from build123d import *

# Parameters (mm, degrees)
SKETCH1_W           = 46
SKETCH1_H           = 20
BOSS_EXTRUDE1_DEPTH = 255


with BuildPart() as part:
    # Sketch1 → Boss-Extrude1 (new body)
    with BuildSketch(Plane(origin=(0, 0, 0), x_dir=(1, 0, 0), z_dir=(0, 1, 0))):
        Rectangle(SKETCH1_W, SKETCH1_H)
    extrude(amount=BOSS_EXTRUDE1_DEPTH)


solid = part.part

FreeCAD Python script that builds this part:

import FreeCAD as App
import Part
import Sketcher
from FreeCAD import Vector

doc = App.newDocument("Part")
body = doc.addObject("PartDesign::Body", "Body")

# Sketch on XZ plane
sketch1 = body.newObject("Sketcher::SketchObject", "Sketch")
sketch1.AttachmentSupport = (doc.getObject("XZ_Plane"), [""])
sketch1.MapMode = "FlatFace"
sketch1.addGeometry(Part.LineSegment(Vector(-23, -10, 0), Vector(-23, 10, 0)), False)
sketch1.addGeometry(Part.LineSegment(Vector(-23, 10, 0), Vector(23, 10, 0)), False)
sketch1.addGeometry(Part.LineSegment(Vector(23, 10, 0), Vector(23, -10, 0)), False)
sketch1.addGeometry(Part.LineSegment(Vector(23, -10, 0), Vector(-23, -10, 0)), False)
sketch1.addConstraint(Sketcher.Constraint("Coincident", 0, 2, 1, 1))
sketch1.addConstraint(Sketcher.Constraint("Coincident", 1, 2, 2, 1))
sketch1.addConstraint(Sketcher.Constraint("Coincident", 2, 2, 3, 1))
sketch1.addConstraint(Sketcher.Constraint("Coincident", 3, 2, 0, 1))
sketch1.addConstraint(Sketcher.Constraint("Vertical", 0))
sketch1.addConstraint(Sketcher.Constraint("Horizontal", 1))
sketch1.addConstraint(Sketcher.Constraint("Vertical", 2))
sketch1.addConstraint(Sketcher.Constraint("Horizontal", 3))
sketch1.addConstraint(Sketcher.Constraint("Symmetric", 0, 2, 2, 2, -1, 1))
sketch1.addConstraint(Sketcher.Constraint("DistanceX", 1, 1, 1, 2, 46.0))
sketch1.addConstraint(Sketcher.Constraint("DistanceY", 0, 1, 0, 2, 20.0))
pad1 = body.newObject("PartDesign::Pad", "Pad")
pad1.Profile = sketch1
pad1.Length = 255
pad1.Reversed = True

doc.recompute()
